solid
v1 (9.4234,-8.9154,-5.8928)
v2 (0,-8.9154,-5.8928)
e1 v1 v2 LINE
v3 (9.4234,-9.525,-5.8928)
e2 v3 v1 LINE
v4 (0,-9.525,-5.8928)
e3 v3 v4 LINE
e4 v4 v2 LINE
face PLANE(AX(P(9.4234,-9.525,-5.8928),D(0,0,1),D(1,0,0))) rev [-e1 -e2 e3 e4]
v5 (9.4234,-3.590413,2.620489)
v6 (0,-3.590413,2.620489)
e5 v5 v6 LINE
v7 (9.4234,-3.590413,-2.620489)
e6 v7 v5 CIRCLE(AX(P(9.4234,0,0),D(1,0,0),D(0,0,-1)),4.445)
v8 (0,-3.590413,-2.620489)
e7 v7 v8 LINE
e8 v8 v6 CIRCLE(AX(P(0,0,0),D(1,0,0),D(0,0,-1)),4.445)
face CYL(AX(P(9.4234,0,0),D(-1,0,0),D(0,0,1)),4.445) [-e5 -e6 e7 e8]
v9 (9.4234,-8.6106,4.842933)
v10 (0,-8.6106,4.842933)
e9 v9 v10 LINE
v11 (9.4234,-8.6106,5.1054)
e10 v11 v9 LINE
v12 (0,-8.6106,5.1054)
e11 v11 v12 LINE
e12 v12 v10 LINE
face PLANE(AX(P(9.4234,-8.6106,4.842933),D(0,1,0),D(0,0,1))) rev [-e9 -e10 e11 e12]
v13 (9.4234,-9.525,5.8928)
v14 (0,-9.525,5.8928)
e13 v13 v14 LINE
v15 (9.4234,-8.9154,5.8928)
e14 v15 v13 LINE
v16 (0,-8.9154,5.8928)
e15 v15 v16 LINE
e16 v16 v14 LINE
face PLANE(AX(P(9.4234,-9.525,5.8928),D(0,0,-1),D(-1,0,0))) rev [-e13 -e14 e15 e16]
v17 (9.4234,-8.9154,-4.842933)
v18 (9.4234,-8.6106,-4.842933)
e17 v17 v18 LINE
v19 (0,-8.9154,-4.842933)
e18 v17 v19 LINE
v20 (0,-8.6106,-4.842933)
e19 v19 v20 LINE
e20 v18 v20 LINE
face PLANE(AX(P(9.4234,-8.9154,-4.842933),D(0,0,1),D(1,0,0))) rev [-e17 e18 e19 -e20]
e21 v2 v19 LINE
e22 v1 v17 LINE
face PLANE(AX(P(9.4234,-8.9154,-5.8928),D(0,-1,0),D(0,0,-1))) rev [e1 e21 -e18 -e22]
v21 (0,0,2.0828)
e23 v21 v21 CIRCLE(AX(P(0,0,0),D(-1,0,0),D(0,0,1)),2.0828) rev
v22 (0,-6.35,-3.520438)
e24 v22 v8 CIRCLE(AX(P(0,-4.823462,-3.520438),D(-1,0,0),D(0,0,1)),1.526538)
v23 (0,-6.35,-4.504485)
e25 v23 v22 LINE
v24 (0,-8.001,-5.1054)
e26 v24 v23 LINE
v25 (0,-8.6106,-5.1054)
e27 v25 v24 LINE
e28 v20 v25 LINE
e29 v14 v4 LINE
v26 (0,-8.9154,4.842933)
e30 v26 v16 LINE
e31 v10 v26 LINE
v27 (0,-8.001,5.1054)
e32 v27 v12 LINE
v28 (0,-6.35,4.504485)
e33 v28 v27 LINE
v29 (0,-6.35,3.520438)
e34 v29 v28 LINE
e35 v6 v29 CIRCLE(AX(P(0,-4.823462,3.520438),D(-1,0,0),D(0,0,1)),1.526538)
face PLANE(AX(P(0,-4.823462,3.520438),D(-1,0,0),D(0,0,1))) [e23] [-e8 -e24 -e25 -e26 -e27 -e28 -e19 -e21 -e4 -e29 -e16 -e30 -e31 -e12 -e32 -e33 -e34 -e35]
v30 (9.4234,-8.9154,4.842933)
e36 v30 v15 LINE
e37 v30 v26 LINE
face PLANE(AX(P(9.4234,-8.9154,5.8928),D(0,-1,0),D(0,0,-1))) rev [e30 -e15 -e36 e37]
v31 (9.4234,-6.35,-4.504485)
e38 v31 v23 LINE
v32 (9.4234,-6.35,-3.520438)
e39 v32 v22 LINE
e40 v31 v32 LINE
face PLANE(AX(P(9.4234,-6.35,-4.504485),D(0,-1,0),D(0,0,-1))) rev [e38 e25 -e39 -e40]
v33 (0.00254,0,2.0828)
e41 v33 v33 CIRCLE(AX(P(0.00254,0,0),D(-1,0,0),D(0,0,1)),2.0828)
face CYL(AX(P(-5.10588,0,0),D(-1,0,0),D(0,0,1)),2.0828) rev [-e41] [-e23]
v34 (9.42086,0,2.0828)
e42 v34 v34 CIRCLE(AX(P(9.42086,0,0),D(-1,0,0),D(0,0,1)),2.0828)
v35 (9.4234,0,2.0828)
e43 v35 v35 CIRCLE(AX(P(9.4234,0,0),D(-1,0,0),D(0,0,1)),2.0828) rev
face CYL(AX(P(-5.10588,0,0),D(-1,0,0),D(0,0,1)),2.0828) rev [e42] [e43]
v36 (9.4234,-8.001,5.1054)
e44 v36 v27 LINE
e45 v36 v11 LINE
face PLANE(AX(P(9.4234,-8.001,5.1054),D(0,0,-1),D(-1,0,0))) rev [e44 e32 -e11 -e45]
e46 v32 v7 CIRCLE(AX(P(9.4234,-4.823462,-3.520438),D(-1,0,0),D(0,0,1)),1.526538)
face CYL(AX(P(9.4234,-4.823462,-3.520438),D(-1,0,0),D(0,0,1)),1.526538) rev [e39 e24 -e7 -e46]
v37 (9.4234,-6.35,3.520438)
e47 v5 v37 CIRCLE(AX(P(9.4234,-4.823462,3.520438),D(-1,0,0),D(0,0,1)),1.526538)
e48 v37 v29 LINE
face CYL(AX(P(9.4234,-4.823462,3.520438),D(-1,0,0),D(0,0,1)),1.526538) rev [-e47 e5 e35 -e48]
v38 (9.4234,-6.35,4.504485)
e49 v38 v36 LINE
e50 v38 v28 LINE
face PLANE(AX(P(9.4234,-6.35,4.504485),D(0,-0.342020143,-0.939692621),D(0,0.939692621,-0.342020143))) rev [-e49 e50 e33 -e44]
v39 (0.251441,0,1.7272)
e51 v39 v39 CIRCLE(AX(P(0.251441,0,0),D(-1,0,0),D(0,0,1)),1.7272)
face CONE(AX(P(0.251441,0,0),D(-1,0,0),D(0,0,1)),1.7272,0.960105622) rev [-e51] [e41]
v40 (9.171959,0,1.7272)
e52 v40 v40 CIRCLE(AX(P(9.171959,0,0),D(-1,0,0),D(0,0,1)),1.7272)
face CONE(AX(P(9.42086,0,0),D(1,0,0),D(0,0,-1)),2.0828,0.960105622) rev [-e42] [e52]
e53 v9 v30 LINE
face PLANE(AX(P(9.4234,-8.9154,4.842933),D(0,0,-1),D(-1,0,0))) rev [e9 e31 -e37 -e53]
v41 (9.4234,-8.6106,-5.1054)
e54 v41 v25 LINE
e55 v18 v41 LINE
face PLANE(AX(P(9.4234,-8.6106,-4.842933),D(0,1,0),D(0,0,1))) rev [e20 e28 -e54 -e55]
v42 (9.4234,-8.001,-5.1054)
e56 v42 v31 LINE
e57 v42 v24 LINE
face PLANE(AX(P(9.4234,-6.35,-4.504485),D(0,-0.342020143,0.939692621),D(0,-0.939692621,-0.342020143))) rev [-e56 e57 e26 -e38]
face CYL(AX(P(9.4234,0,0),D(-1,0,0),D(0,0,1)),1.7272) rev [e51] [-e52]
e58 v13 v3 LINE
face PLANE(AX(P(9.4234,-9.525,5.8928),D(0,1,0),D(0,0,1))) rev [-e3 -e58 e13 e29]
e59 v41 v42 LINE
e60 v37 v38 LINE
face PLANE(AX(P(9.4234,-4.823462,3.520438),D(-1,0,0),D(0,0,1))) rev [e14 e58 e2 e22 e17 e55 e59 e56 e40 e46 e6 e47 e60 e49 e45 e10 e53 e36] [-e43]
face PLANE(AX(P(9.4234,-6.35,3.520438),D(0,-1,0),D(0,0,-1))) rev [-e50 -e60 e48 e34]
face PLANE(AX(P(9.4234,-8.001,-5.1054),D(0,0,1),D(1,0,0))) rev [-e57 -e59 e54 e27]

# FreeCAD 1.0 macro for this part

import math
import FreeCAD as App
import Part
import Sketcher
from FreeCAD import Vector
Q = App.Units.Quantity


def add_polygon(sketch, points):
    """Adds a closed chain of lines whose ends are joined by coincident constraints."""
    first, n = sketch.GeometryCount, len(points)
    for a, b in zip(points, points[1:] + points[:1]):
        sketch.addGeometry(Part.LineSegment(App.Vector(*a, 0), App.Vector(*b, 0)), False)
    for i in range(n):
        sketch.addConstraint(Sketcher.Constraint("Coincident", first + i, 2, first + (i + 1) % n, 1))

doc = App.newDocument("Part")
params = doc.addObject("Spreadsheet::Sheet", "Params")
for row, (alias, value) in enumerate([
    ("sketch1_diameter", "0.136 in"),
    ("sketch1_radius", "0.175 in"),
    ("sketch1_width", "0.024 in"),
    ("sketch1_width2", "0.012 in"),
    ("sketch1_height", "0.464 in"),
    ("pad1_length", "0.371 in"),
    ("sketch2_height", "0.014 in"),
    ("groove_angle", "360 deg"),
], start=1):
    params.set(f"A{row}", alias)
    params.set(f"B{row}", "=" + value)
    params.setAlias(f"B{row}", alias)

body = doc.addObject("PartDesign::Body", "Body")

# Sketch on YZ plane
sketch1 = doc.addObject("Sketcher::SketchObject", "Sketch")
body.addObject(sketch1)
sketch1.AttachmentSupport = (doc.YZ_Plane, [""])
sketch1.MapMode = "FlatFace"
sketch1.addGeometry([
    Part.LineSegment(Vector(-9.525, 5.8928, 0), Vector(-9.525, -5.8928, 0)),  # 0
    Part.LineSegment(Vector(-9.525, -5.8928, 0), Vector(-8.9154, -5.8928, 0)),  # 1
    Part.LineSegment(Vector(-8.9154, -5.8928, 0), Vector(-8.9154, -4.842933, 0)),  # 2
    Part.LineSegment(Vector(-8.9154, -4.842933, 0), Vector(-8.6106, -4.842933, 0)),  # 3
    Part.LineSegment(Vector(-8.6106, -4.842933, 0), Vector(-8.6106, -5.1054, 0)),  # 4
    Part.LineSegment(Vector(-8.6106, -5.1054, 0), Vector(-8.001, -5.1054, 0)),  # 5
    Part.LineSegment(Vector(-8.001, -5.1054, 0), Vector(-6.35, -4.504485, 0)),  # 6
    Part.LineSegment(Vector(-6.35, -4.504485, 0), Vector(-6.35, -3.520438, 0)),  # 7
    Part.ArcOfCircle(Part.Circle(Vector(-4.823462, -3.520438, 0), Vector(0, 0, 1), 1.526538), math.radians(36.124106), math.radians(180)),  # 8
    Part.ArcOfCircle(Part.Circle(Vector(0, 0, 0), Vector(0, 0, 1), 4.445), math.radians(-143.875894), math.radians(143.875894)),  # 9
    Part.ArcOfCircle(Part.Circle(Vector(-4.823462, 3.520438, 0), Vector(0, 0, 1), 1.526538), math.radians(180), math.radians(323.875894)),  # 10
    Part.LineSegment(Vector(-6.35, 3.520438, 0), Vector(-6.35, 4.504485, 0)),  # 11
    Part.LineSegment(Vector(-6.35, 4.504485, 0), Vector(-8.001, 5.1054, 0)),  # 12
    Part.LineSegment(Vector(-8.001, 5.1054, 0), Vector(-8.6106, 5.1054, 0)),  # 13
    Part.LineSegment(Vector(-8.6106, 5.1054, 0), Vector(-8.6106, 4.842933, 0)),  # 14
    Part.LineSegment(Vector(-8.6106, 4.842933, 0), Vector(-8.9154, 4.842933, 0)),  # 15
    Part.LineSegment(Vector(-8.9154, 4.842933, 0), Vector(-8.9154, 5.8928, 0)),  # 16
    Part.LineSegment(Vector(-8.9154, 5.8928, 0), Vector(-9.525, 5.8928, 0)),  # 17
    Part.Circle(Vector(0, 0, 0), Vector(0, 0, 1), 1.7272),  # 18
], False)
sketch1.addConstraint([
    Sketcher.Constraint("Coincident", 0, 2, 1, 1),
    Sketcher.Constraint("Coincident", 1, 2, 2, 1),
    Sketcher.Constraint("Coincident", 2, 2, 3, 1),
    Sketcher.Constraint("Coincident", 3, 2, 4, 1),
    Sketcher.Constraint("Coincident", 4, 2, 5, 1),
    Sketcher.Constraint("Coincident", 5, 2, 6, 1),
    Sketcher.Constraint("Coincident", 6, 2, 7, 1),
    Sketcher.Constraint("Tangent", 7, 2, 8, 2),
    Sketcher.Constraint("Tangent", 8, 1, 9, 1),
    Sketcher.Constraint("Tangent", 9, 2, 10, 2),
    Sketcher.Constraint("Tangent", 10, 1, 11, 1),
    Sketcher.Constraint("Coincident", 11, 2, 12, 1),
    Sketcher.Constraint("Coincident", 12, 2, 13, 1),
    Sketcher.Constraint("Coincident", 13, 2, 14, 1),
    Sketcher.Constraint("Coincident", 14, 2, 15, 1),
    Sketcher.Constraint("Coincident", 15, 2, 16, 1),
    Sketcher.Constraint("Coincident", 16, 2, 17, 1),
    Sketcher.Constraint("Coincident", 17, 2, 0, 1),
    Sketcher.Constraint("Vertical", 0),
    Sketcher.Constraint("Horizontal", 1),
    Sketcher.Constraint("Vertical", 2),
    Sketcher.Constraint("Horizontal", 3),
    Sketcher.Constraint("Vertical", 4),
    Sketcher.Constraint("Horizontal", 5),
    Sketcher.Constraint("Vertical", 7),
    Sketcher.Constraint("Vertical", 11),
    Sketcher.Constraint("Horizontal", 13),
    Sketcher.Constraint("Vertical", 14),
    Sketcher.Constraint("Horizontal", 15),
    Sketcher.Constraint("Vertical", 16),
    Sketcher.Constraint("Horizontal", 17),
    Sketcher.Constraint("Coincident", 9, 3, -1, 1),
    Sketcher.Constraint("Coincident", 18, 3, -1, 1),
    Sketcher.Constraint("Equal", 8, 10),
    Sketcher.Constraint("Symmetric", 6, 2, 11, 2, -1),
    Sketcher.Constraint("Symmetric", 5, 2, 12, 2, -1),
    Sketcher.Constraint("Symmetric", 3, 2, 14, 2, -1),
    Sketcher.Constraint("Symmetric", 1, 2, 16, 2, -1),
    Sketcher.Constraint("Equal", 1, 5),
    Sketcher.Constraint("Diameter", 18, Q("0.136 in")),
    Sketcher.Constraint("Angle", 6, Q("20 deg")),
    Sketcher.Constraint("Radius", 9, Q("0.175 in")),
    Sketcher.Constraint("Radius", 8, Q("0.0600999 in")),
    Sketcher.Constraint("DistanceX", 1, 1, 1, 2, Q("0.024 in")),
    Sketcher.Constraint("DistanceX", 3, 1, 3, 2, Q("0.012 in")),
    Sketcher.Constraint("DistanceY", 0, 2, 0, 1, Q("0.464 in")),
    Sketcher.Constraint("DistanceX", 6, 2, -1, 1, Q("0.25 in")),
    Sketcher.Constraint("DistanceX", 0, 2, -1, 1, Q("0.375 in")),
    Sketcher.Constraint("DistanceY", 4, 2, -1, 1, Q("0.201 in")),
    Sketcher.Constraint("DistanceY", 2, 1, 2, 2, 1.049867),
])
sketch1.setExpression("Constraints[39]", "Params.sketch1_diameter")
sketch1.setExpression("Constraints[41]", "Params.sketch1_radius")
sketch1.setExpression("Constraints[43]", "Params.sketch1_width")
sketch1.setExpression("Constraints[44]", "Params.sketch1_width2")
sketch1.setExpression("Constraints[45]", "Params.sketch1_height")
pad1 = doc.addObject("PartDesign::Pad", "Pad")
body.addObject(pad1)
pad1.Profile = sketch1
pad1.setExpression("Length", "Params.pad1_length")

# Sketch on XY plane
sketch2 = doc.addObject("Sketcher::SketchObject", "Sketch001")
body.addObject(sketch2)
sketch2.AttachmentSupport = (doc.XY_Plane, [""])
sketch2.MapMode = "FlatFace"
add_polygon(sketch2, [(0.00254, 2.0828), (-0.254, 2.0828), (-0.254, 1.7272), (0.251441, 1.7272)])  # lines 0-3
add_polygon(sketch2, [(9.6774, 2.0828), (9.42086, 2.0828), (9.171959, 1.7272), (9.6774, 1.7272)])  # lines 4-7
sketch2.addConstraint([
    Sketcher.Constraint("Horizontal", 0),
    Sketcher.Constraint("Vertical", 1),
    Sketcher.Constraint("Horizontal", 2),
    Sketcher.Constraint("Horizontal", 4),
    Sketcher.Constraint("Horizontal", 6),
    Sketcher.Constraint("Vertical", 7),
    Sketcher.Constraint("Horizontal", 3, 2, 4, 2),
    Sketcher.Constraint("Horizontal", 2, 2, 5, 2),
    Sketcher.Constraint("Equal", 0, 4),
    Sketcher.Constraint("Equal", 2, 6),
    Sketcher.Constraint("DistanceY", 1, 2, 1, 1, Q("0.014 in")),
    Sketcher.Constraint("DistanceX", 0, 2, -1, 1, Q("0.01 in")),
    Sketcher.Constraint("Angle", 3, Q("124.99 deg")),
    Sketcher.Constraint("DistanceX", 0, 2, 0, 1, Q("0.0101 in")),
    Sketcher.Constraint("DistanceY", -1, 1, 0, 2, Q("0.082 in")),
    Sketcher.Constraint("DistanceX", -1, 1, 6, 2, Q("0.381 in")),
])
sketch2.setExpression("Constraints[18]", "Params.sketch2_height")
groove = doc.addObject("PartDesign::Groove", "Groove")
body.addObject(groove)
groove.Profile = sketch2
groove.ReferenceAxis = (sketch2, ["H_Axis"])
groove.setExpression("Angle", "Params.groove_angle")

doc.recompute()
